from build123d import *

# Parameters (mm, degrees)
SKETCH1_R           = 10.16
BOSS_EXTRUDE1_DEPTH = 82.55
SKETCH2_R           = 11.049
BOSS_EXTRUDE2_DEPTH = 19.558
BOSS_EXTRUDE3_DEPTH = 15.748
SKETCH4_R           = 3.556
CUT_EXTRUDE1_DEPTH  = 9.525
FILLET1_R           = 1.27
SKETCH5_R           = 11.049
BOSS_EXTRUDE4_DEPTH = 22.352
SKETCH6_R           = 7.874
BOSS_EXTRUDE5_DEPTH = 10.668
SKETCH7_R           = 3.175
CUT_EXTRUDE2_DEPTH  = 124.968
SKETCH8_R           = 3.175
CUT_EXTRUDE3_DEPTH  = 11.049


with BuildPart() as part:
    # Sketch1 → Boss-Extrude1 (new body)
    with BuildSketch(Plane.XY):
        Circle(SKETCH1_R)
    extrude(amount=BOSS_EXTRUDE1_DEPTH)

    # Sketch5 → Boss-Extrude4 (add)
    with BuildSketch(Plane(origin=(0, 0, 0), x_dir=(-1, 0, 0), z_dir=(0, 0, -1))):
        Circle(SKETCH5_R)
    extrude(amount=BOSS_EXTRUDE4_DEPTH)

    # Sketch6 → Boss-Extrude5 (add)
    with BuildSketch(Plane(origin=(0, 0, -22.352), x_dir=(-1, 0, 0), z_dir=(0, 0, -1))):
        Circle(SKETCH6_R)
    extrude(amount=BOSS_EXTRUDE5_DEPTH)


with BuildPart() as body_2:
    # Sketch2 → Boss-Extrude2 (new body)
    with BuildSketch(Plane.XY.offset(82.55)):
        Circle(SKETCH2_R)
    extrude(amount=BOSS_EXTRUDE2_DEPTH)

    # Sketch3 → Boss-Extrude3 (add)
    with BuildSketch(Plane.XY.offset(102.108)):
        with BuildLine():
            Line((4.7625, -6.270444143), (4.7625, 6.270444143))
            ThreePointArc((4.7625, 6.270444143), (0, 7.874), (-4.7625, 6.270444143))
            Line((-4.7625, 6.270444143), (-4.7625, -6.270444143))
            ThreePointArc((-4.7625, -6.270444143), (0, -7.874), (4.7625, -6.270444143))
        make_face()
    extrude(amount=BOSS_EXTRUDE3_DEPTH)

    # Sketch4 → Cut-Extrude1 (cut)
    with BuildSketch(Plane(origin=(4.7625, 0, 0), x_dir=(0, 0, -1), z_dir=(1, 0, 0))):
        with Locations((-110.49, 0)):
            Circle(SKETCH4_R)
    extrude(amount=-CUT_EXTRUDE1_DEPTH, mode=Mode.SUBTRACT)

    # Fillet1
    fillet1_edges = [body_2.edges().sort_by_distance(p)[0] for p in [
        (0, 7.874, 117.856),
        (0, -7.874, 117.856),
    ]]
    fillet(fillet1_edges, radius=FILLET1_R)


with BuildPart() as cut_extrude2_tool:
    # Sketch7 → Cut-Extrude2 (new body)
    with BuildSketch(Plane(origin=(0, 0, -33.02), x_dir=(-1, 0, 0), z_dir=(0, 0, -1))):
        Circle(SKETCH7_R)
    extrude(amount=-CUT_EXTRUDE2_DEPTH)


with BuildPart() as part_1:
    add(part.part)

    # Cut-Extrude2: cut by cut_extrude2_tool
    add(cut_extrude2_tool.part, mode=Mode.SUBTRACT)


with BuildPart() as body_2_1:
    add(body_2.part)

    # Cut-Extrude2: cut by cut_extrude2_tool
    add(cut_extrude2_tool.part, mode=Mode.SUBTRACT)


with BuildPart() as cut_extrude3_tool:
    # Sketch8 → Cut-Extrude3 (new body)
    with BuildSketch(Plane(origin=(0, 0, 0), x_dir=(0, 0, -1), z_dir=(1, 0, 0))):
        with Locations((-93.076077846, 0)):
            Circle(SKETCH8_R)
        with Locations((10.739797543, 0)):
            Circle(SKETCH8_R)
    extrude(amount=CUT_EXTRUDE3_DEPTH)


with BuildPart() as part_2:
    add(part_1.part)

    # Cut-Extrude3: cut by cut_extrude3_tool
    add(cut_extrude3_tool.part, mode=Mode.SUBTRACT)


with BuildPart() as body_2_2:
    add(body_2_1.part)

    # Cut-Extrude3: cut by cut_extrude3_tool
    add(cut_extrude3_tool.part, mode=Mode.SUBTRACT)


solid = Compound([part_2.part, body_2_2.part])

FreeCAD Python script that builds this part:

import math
import FreeCAD as App
import Part
import Sketcher
from FreeCAD import Vector
Q = App.Units.Quantity


def edges_at(feature, points):
    """Names of the edges that pass closest to the given points."""
    edges = feature.Shape.Edges
    near = lambda p: min(range(len(edges)), key=lambda i: edges[i].distToShape(Part.Vertex(*p))[0])
    return sorted({f"Edge{near(p) + 1}" for p in points})

doc = App.newDocument("Part")
body = doc.addObject("PartDesign::Body", "Body")

# Sketch on XY plane
sketch1 = doc.addObject("Sketcher::SketchObject", "Sketch")
body.addObject(sketch1)
sketch1.AttachmentSupport = (doc.XY_Plane, [""])
sketch1.MapMode = "FlatFace"
sketch1.addGeometry(Part.Circle(Vector(0, 0, 0), Vector(0, 0, 1), 10), False)
sketch1.addConstraint([
    Sketcher.Constraint("Coincident", 0, 3, -1, 1),
    Sketcher.Constraint("Diameter", 0, Q("0.8 in")),
])
pad1 = doc.addObject("PartDesign::Pad", "Pad")
body.addObject(pad1)
pad1.Profile = sketch1
pad1.Length = Q("3.25 in")

# Sketch on XY plane
sketch2 = doc.addObject("Sketcher::SketchObject", "Sketch001")
body.addObject(sketch2)
sketch2.AttachmentSupport = (doc.XY_Plane, [""])
sketch2.MapMode = "FlatFace"
sketch2.addGeometry(Part.Circle(Vector(0, 0, 0), Vector(0, 0, 1), 11), False)
sketch2.addConstraint([
    Sketcher.Constraint("Coincident", 0, 3, -1, 1),
    Sketcher.Constraint("Diameter", 0, Q("0.87 in")),
])
pad2 = doc.addObject("PartDesign::Pad", "Pad001")
body.addObject(pad2)
pad2.Profile = sketch2
pad2.Length = Q("0.88 in")
pad2.Reversed = True

# Sketch on XY plane
sketch3 = doc.addObject("Sketcher::SketchObject", "Sketch002")
body.addObject(sketch3)
sketch3.AttachmentSupport = (doc.XY_Plane, [""])
sketch3.MapMode = "FlatFace"
sketch3.AttachmentOffset = App.Placement(Vector(0, 0, -0.88 * 25.4), App.Rotation())
sketch3.addGeometry(Part.Circle(Vector(0, 0, 0), Vector(0, 0, 1), 8), False)
sketch3.addConstraint([
    Sketcher.Constraint("Coincident", 0, 3, -1, 1),
    Sketcher.Constraint("Diameter", 0, Q("0.62 in")),
])
pad3 = doc.addObject("PartDesign::Pad", "Pad002")
body.addObject(pad3)
pad3.Profile = sketch3
pad3.Length = Q("0.42 in")
pad3.Reversed = True
body2 = doc.addObject("PartDesign::Body", "Body001")

# Sketch on XY plane
sketch4 = doc.addObject("Sketcher::SketchObject", "Sketch003")
body2.addObject(sketch4)
sketch4.AttachmentSupport = (doc.getObject("XY_Plane001"), [""])
sketch4.MapMode = "FlatFace"
sketch4.AttachmentOffset = App.Placement(Vector(0, 0, 3.25 * 25.4), App.Rotation())
sketch4.addGeometry(Part.Circle(Vector(0, 0, 0), Vector(0, 0, 1), 11), False)
sketch4.addConstraint([
    Sketcher.Constraint("Coincident", 0, 3, -1, 1),
    Sketcher.Constraint("Diameter", 0, Q("0.87 in")),
])
pad4 = doc.addObject("PartDesign::Pad", "Pad003")
body2.addObject(pad4)
pad4.Profile = sketch4
pad4.Length = Q("0.77 in")

# Sketch on XY plane
sketch5 = doc.addObject("Sketcher::SketchObject", "Sketch004")
body2.addObject(sketch5)
sketch5.AttachmentSupport = (doc.getObject("XY_Plane001"), [""])
sketch5.MapMode = "FlatFace"
sketch5.AttachmentOffset = App.Placement(Vector(0, 0, 4.02 * 25.4), App.Rotation())
sketch5.addGeometry([
    Part.LineSegment(Vector(5, -6, 0), Vector(5, 6, 0)),
    Part.ArcOfCircle(Part.Circle(Vector(0, 0, 0), Vector(0, 0, 1), 8), math.radians(53), math.radians(127)),
    Part.LineSegment(Vector(-5, 6, 0), Vector(-5, -6, 0)),
    Part.ArcOfCircle(Part.Circle(Vector(0, 0, 0), Vector(0, 0, 1), 8), math.radians(-127), math.radians(-53)),
], False)
sketch5.addConstraint([
    Sketcher.Constraint("Coincident", 0, 2, 1, 1),
    Sketcher.Constraint("Coincident", 1, 2, 2, 1),
    Sketcher.Constraint("Coincident", 2, 2, 3, 1),
    Sketcher.Constraint("Coincident", 3, 2, 0, 1),
    Sketcher.Constraint("Vertical", 0),
    Sketcher.Constraint("Vertical", 2),
    Sketcher.Constraint("Coincident", 1, 3, -1, 1),
    Sketcher.Constraint("Coincident", 3, 3, -1, 1),
    Sketcher.Constraint("Equal", 1, 3),
    Sketcher.Constraint("Horizontal", 0, 2, 1, 2),
    Sketcher.Constraint("Radius", 1, Q("0.31 in")),
    Sketcher.Constraint("DistanceX", -1, 1, 0, 2, Q("0.1875 in")),
])
pad5 = doc.addObject("PartDesign::Pad", "Pad004")
body2.addObject(pad5)
pad5.Profile = sketch5
pad5.Length = Q("0.62 in")

# Sketch on YZ plane
sketch6 = doc.addObject("Sketcher::SketchObject", "Sketch005")
body2.addObject(sketch6)
sketch6.AttachmentSupport = (doc.getObject("YZ_Plane001"), [""])
sketch6.MapMode = "FlatFace"
sketch6.AttachmentOffset = App.Placement(Vector(0, 0, 0.1875 * 25.4), App.Rotation())
sketch6.addGeometry(Part.Circle(Vector(0, 110.5, 0), Vector(0, 0, 1), 3.6), False)
sketch6.addConstraint([
    Sketcher.Constraint("PointOnObject", 0, 3, -2),
    Sketcher.Constraint("Diameter", 0, Q("0.28 in")),
    Sketcher.Constraint("DistanceY", -1, 1, 0, 3, Q("4.35 in")),
])
pocket1 = doc.addObject("PartDesign::Pocket", "Pocket")
body2.addObject(pocket1)
pocket1.Profile = sketch6
pocket1.Length = Q("0.375 in")
doc.recompute()

fillet = doc.addObject("PartDesign::Fillet", "Fillet")
body2.addObject(fillet)
fillet.Base = (pocket1, edges_at(pocket1, [(0, 7.874, 117.856), (0, -7.874, 117.856)]))
fillet.Radius = Q("0.05 in")
body3 = doc.addObject("PartDesign::Body", "Body002")

# Sketch on XY plane
sketch7 = doc.addObject("Sketcher::SketchObject", "Sketch006")
body3.addObject(sketch7)
sketch7.AttachmentSupport = (doc.getObject("XY_Plane002"), [""])
sketch7.MapMode = "FlatFace"
sketch7.AttachmentOffset = App.Placement(Vector(0, 0, -1.3 * 25.4), App.Rotation())
sketch7.addGeometry(Part.Circle(Vector(0, 0, 0), Vector(0, 0, 1), 3.2), False)
sketch7.addConstraint([
    Sketcher.Constraint("Coincident", 0, 3, -1, 1),
    Sketcher.Constraint("Diameter", 0, Q("0.25 in")),
])
pad6 = doc.addObject("PartDesign::Pad", "Pad005")
body3.addObject(pad6)
pad6.Profile = sketch7
pad6.Length = Q("4.92 in")
doc.recompute()

body4 = doc.addObject("PartDesign::Body", "Body003")
body4.BaseFeature = body3
boolean = doc.addObject("PartDesign::Boolean", "Boolean")
body.addObject(boolean)
boolean.Type = "Cut"
boolean.addObjects([body4])
doc.recompute()

boolean2 = doc.addObject("PartDesign::Boolean", "Boolean001")
body2.addObject(boolean2)
boolean2.Type = "Cut"
boolean2.addObjects([body3])
body5 = doc.addObject("PartDesign::Body", "Body004")
body5.AllowCompound = True

# Sketch on YZ plane
sketch8 = doc.addObject("Sketcher::SketchObject", "Sketch007")
body5.addObject(sketch8)
sketch8.AttachmentSupport = (doc.getObject("YZ_Plane004"), [""])
sketch8.MapMode = "FlatFace"
sketch8.addGeometry([
    Part.Circle(Vector(0, 93.1, 0), Vector(0, 0, 1), 3.2),
    Part.Circle(Vector(0, -10.7, 0), Vector(0, 0, 1), 3.2),
], False)
sketch8.addConstraint([
    Sketcher.Constraint("Equal", 0, 1),
    Sketcher.Constraint("PointOnObject", 0, 3, -2),
    Sketcher.Constraint("PointOnObject", 1, 3, -2),
    Sketcher.Constraint("Diameter", 0, Q("0.25 in")),
    Sketcher.Constraint("DistanceY", -1, 1, 0, 3, Q("93.076078 mm")),
    Sketcher.Constraint("DistanceY", 1, 3, -1, 1, Q("10.739798 mm")),
])
pad7 = doc.addObject("PartDesign::Pad", "Pad006")
body5.addObject(pad7)
pad7.Profile = sketch8
pad7.Length = Q("0.435 in")
doc.recompute()

body6 = doc.addObject("PartDesign::Body", "Body005")
body6.BaseFeature = body5
boolean3 = doc.addObject("PartDesign::Boolean", "Boolean002")
body.addObject(boolean3)
boolean3.Type = "Cut"
boolean3.addObjects([body6])
doc.recompute()

boolean4 = doc.addObject("PartDesign::Boolean", "Boolean003")
body2.addObject(boolean4)
boolean4.Type = "Cut"
boolean4.addObjects([body5])

doc.recompute()
